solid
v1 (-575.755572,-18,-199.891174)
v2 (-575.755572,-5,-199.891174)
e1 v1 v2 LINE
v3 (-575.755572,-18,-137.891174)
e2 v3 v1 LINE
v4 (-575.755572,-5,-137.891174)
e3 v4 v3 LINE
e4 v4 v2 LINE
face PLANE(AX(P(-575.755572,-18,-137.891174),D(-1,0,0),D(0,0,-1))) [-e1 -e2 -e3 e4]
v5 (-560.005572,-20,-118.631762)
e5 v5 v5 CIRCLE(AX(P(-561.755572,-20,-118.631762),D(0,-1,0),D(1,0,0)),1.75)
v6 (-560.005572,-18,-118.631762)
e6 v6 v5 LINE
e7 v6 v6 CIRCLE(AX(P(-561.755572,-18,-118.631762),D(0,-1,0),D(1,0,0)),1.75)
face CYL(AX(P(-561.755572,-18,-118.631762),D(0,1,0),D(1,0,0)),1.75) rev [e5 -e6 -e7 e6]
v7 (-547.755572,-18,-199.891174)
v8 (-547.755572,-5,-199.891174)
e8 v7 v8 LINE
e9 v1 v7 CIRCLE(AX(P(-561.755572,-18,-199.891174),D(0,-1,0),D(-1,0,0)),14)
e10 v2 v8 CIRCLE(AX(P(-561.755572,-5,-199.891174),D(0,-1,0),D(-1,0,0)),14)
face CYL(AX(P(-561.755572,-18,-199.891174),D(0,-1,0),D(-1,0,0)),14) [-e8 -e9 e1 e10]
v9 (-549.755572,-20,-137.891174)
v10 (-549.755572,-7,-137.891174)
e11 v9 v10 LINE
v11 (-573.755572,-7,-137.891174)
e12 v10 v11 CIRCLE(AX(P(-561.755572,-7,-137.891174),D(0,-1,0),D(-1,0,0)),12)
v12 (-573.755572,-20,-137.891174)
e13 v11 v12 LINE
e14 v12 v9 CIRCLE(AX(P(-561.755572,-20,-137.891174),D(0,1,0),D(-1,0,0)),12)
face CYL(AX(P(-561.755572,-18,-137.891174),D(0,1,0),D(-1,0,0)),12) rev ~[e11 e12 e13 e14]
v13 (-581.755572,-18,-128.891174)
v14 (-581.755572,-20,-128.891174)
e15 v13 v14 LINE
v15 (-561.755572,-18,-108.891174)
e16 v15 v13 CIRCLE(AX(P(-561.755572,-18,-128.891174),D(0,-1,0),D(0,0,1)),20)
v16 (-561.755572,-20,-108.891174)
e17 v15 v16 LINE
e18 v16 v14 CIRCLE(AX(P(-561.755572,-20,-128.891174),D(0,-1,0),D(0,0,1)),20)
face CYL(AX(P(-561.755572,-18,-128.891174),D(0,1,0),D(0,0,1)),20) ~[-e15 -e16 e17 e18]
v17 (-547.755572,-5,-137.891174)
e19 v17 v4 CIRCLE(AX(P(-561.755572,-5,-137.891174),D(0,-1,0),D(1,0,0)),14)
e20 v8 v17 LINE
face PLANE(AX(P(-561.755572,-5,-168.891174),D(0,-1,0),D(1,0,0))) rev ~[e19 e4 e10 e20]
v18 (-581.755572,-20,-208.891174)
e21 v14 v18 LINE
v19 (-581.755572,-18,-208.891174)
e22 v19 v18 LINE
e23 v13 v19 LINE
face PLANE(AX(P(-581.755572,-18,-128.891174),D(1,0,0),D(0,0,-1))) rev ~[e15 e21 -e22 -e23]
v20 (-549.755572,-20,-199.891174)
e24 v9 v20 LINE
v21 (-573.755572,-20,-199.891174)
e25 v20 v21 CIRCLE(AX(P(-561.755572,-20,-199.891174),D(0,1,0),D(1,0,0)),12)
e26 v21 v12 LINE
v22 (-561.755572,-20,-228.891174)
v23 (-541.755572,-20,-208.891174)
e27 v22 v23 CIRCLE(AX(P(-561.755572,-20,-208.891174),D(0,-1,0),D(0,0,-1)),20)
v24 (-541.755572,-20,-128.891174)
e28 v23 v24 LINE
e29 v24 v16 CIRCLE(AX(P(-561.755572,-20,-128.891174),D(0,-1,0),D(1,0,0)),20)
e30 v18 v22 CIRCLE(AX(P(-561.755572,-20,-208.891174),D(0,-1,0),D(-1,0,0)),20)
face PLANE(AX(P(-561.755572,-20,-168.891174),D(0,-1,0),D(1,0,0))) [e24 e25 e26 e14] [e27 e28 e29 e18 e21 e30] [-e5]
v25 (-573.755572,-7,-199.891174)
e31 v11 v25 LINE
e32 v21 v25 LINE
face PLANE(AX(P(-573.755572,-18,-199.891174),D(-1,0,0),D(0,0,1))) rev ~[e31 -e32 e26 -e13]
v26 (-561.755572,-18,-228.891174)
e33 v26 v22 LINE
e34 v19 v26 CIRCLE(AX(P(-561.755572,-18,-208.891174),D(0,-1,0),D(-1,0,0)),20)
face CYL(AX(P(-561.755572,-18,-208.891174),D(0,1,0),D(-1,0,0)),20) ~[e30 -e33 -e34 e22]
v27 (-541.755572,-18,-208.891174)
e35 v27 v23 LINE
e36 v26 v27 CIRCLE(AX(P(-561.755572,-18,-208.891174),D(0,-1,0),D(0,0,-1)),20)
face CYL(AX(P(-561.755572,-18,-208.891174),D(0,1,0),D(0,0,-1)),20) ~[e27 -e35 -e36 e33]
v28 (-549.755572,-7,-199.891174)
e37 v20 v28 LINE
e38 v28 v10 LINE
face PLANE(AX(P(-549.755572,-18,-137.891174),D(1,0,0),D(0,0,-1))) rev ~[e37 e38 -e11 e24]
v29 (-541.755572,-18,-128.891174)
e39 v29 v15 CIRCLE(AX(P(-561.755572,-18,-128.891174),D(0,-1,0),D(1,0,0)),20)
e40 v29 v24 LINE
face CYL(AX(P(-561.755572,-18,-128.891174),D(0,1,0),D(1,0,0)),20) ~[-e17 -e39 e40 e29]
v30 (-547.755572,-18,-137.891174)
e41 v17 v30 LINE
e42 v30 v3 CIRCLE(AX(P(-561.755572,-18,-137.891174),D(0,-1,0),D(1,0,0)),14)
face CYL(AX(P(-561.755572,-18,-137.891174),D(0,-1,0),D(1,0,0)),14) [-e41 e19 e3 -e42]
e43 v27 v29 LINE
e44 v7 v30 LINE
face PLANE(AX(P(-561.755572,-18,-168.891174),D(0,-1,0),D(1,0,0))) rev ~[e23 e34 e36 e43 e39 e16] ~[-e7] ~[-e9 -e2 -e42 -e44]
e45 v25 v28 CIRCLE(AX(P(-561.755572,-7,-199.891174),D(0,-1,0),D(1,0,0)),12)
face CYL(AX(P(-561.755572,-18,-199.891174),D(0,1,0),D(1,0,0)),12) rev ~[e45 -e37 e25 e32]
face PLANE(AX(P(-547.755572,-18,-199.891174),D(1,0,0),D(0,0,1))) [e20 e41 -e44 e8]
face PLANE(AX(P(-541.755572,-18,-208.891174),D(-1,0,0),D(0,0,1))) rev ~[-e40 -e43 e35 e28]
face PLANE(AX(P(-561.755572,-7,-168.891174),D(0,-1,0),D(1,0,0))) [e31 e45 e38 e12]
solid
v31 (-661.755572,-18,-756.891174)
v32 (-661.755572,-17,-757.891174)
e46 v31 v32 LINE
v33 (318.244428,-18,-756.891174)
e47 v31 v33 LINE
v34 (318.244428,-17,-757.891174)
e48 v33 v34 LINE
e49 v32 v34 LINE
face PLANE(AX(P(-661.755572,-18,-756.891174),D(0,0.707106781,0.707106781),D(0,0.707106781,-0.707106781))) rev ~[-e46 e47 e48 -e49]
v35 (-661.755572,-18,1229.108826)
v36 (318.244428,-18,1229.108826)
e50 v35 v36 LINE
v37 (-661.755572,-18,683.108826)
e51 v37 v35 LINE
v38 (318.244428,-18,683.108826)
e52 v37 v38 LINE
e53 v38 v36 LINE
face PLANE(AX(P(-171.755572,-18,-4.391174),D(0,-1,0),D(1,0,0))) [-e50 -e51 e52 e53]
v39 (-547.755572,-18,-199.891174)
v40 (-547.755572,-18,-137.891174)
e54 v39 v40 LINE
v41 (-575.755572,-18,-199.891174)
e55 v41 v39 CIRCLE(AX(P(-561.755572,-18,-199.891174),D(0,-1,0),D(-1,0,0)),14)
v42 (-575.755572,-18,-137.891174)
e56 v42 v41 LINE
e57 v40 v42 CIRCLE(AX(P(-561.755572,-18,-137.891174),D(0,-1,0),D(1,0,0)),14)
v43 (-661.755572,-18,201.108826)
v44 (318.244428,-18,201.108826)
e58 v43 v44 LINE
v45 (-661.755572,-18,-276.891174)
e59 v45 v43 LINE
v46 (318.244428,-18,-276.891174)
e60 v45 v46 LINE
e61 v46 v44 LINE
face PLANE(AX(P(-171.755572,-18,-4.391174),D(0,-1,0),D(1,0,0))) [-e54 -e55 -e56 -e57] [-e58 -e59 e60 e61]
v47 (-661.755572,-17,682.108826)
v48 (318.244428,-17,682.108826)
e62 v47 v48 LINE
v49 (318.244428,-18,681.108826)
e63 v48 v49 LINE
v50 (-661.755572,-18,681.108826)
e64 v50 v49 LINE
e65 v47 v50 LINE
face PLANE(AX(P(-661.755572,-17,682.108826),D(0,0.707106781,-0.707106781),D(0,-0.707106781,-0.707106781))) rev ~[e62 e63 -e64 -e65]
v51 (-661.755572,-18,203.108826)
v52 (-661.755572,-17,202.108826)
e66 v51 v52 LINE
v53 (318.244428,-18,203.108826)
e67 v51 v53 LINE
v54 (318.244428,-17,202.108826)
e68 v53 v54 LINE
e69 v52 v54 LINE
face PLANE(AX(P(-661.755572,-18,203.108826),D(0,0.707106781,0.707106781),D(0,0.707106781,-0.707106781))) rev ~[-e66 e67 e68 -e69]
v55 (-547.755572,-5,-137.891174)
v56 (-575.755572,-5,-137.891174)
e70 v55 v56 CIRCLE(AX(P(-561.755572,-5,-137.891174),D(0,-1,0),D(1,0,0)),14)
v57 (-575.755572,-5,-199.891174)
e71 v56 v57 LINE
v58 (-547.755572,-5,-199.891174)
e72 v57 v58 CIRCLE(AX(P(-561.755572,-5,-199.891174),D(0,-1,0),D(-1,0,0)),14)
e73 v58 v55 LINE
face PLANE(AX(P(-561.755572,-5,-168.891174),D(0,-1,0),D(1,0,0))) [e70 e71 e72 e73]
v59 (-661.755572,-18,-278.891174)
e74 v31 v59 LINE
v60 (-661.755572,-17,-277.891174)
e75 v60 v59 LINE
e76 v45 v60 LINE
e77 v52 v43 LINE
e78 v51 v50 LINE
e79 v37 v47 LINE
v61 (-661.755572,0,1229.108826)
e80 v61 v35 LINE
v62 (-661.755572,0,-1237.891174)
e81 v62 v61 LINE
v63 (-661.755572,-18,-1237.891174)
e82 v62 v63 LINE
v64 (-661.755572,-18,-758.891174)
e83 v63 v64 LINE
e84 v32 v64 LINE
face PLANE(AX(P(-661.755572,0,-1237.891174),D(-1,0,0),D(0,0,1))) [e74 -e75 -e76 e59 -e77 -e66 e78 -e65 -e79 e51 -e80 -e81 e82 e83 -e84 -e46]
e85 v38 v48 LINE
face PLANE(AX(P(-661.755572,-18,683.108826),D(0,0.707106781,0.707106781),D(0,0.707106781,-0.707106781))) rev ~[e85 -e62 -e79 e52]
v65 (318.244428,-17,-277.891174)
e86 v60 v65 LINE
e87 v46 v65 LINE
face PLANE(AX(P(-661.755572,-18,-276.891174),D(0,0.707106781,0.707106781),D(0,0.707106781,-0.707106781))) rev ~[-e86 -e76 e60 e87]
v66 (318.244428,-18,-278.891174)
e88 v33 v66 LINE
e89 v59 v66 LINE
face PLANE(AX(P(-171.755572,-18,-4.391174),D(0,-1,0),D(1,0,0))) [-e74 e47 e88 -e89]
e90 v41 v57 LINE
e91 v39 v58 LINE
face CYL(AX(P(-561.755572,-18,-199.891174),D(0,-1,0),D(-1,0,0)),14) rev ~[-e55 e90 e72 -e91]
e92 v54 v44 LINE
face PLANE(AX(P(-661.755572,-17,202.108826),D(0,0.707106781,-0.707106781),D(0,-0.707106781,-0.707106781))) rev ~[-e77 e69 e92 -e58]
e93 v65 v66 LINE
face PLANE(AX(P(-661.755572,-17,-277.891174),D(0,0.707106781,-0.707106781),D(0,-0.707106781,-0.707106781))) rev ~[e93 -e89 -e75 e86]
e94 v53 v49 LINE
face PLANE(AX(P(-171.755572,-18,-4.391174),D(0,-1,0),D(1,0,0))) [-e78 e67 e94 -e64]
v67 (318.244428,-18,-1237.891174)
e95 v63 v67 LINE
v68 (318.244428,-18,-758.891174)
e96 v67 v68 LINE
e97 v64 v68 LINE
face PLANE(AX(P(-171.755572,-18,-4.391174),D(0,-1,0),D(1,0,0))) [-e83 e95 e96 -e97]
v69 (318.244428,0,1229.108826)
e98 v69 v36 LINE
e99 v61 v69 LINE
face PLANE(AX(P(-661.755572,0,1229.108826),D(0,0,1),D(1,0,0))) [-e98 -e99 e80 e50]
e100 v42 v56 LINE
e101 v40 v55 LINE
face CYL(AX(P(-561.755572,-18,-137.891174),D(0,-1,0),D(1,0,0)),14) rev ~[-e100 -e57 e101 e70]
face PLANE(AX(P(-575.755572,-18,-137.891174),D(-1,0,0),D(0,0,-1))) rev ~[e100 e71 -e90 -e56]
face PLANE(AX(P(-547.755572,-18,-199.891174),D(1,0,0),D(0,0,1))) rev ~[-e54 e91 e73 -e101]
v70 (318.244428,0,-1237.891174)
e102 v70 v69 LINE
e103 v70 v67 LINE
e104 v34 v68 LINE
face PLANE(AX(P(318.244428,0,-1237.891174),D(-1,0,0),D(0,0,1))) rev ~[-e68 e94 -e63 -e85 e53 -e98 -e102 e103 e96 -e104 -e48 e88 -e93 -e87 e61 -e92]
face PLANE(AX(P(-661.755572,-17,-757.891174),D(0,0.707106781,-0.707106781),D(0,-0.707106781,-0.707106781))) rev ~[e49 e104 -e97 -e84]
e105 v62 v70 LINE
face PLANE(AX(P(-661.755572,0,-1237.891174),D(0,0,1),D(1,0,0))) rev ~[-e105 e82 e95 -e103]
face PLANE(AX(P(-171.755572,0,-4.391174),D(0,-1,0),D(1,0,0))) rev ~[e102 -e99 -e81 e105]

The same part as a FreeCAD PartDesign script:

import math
import FreeCAD as App
import Part
import Sketcher
Q = App.Units.Quantity


def add_polygon(sketch, points):
    """Adds a closed chain of lines whose ends are joined by coincident constraints."""
    first, n = sketch.GeometryCount, len(points)
    for a, b in zip(points, points[1:] + points[:1]):
        sketch.addGeometry(Part.LineSegment(App.Vector(*a, 0), App.Vector(*b, 0)), False)
    for i in range(n):
        sketch.addConstraint(Sketcher.Constraint("Coincident", first + i, 2, first + (i + 1) % n, 1))

doc = App.newDocument("Part")
body = doc.addObject("PartDesign::Body", "Body")

sketch1 = body.newObject("Sketcher::SketchObject", "Sketch")
sketch1.AttachmentSupport = (doc.getObject("XZ_Plane"), [""])
sketch1.MapMode = "FlatFace"
add_polygon(sketch1, [(-662, 1229), (-662, -1238), (318, -1238), (318, 1229)])
sketch1.addConstraint([
    Sketcher.Constraint("Vertical", 0),
    Sketcher.Constraint("Horizontal", 1),
    Sketcher.Constraint("Vertical", 2),
    Sketcher.Constraint("Horizontal", 3),
    Sketcher.Constraint("DistanceX", 1, 1, 1, 2, Q("980 mm")),
    Sketcher.Constraint("DistanceY", 0, 2, 0, 1, Q("2467 mm")),
    Sketcher.Constraint("DistanceX", 0, 2, -1, 1, Q("661.755572 mm")),
    Sketcher.Constraint("DistanceY", 0, 2, -1, 1, Q("1237.891174 mm")),
])
pad1 = body.newObject("PartDesign::Pad", "Pad")
pad1.Profile = sketch1
pad1.Length = 18

sketch2 = body.newObject("Sketcher::SketchObject", "Sketch001")
sketch2.AttachmentSupport = (doc.getObject("YZ_Plane"), [""])
sketch2.MapMode = "FlatFace"
sketch2.AttachmentOffset = App.Placement(App.Vector(0, 0, -661.755572), App.Rotation())
add_polygon(sketch2, [(-18, -756.9), (-17, -757.9), (-18, -758.9)])
add_polygon(sketch2, [(-18, 683.1), (-17, 682.1), (-18, 681.1)])
add_polygon(sketch2, [(-17, 202.1), (-18, 201.1), (-18, 203.1)])
add_polygon(sketch2, [(-17, -277.9), (-18, -278.9), (-18, -276.9)])
sketch2.addConstraint([
    Sketcher.Constraint("Vertical", 2),
    Sketcher.Constraint("Vertical", 5),
    Sketcher.Constraint("Vertical", 7),
    Sketcher.Constraint("Vertical", 10),
    Sketcher.Constraint("Perpendicular", 0, 1),
    Sketcher.Constraint("Perpendicular", 1, 3),
    Sketcher.Constraint("Perpendicular", 3, 4),
    Sketcher.Constraint("Parallel", 4, 6),
    Sketcher.Constraint("Perpendicular", 6, 8),
    Sketcher.Constraint("Perpendicular", 8, 9),
    Sketcher.Constraint("Perpendicular", 9, 11),
    Sketcher.Constraint("Vertical", 0, 2, 3, 2),
    Sketcher.Constraint("Vertical", 2, 2, 4, 2),
    Sketcher.Constraint("Vertical", 5, 2, 6, 2),
    Sketcher.Constraint("Vertical", 3, 2, 8, 2),
    Sketcher.Constraint("Vertical", 7, 2, 9, 2),
    Sketcher.Constraint("Vertical", 8, 2, 11, 2),
    Sketcher.Constraint("Equal", 0, 1),
    Sketcher.Constraint("DistanceY", 2, 1, 2, 2, Q("2 mm")),
    Sketcher.Constraint("DistanceX", 0, 2, -1, 1, Q("17 mm")),
    Sketcher.Constraint("DistanceY", 2, 2, 3, 2, Q("1439 mm")),
    Sketcher.Constraint("DistanceY", 6, 2, 4, 2, Q("480 mm")),
    Sketcher.Constraint("DistanceY", 2, 2, 9, 2, Q("478 mm")),
    Sketcher.Constraint("DistanceY", 0, 2, -1, 1, Q("757.891174 mm")),
])
pocket1 = body.newObject("PartDesign::Pocket", "Pocket")
pocket1.Profile = sketch2
pocket1.Type = "ThroughAll"
pocket1.Reversed = True

sketch3 = body.newObject("Sketcher::SketchObject", "Sketch002")
sketch3.AttachmentSupport = (doc.getObject("XZ_Plane"), [""])
sketch3.MapMode = "FlatFace"
sketch3.AttachmentOffset = App.Placement(App.Vector(0, 0, 18), App.Rotation())
sketch3.addGeometry([
    Part.LineSegment(App.Vector(-548, -200, 0), App.Vector(-548, -138, 0)),
    Part.ArcOfCircle(Part.Circle(App.Vector(-562, -138, 0), App.Vector(0, 0, 1), 14), math.radians(0), math.radians(180)),
    Part.LineSegment(App.Vector(-576, -138, 0), App.Vector(-576, -200, 0)),
    Part.ArcOfCircle(Part.Circle(App.Vector(-562, -200, 0), App.Vector(0, 0, 1), 14), math.radians(180), math.radians(360)),
], False)
sketch3.addConstraint([
    Sketcher.Constraint("Tangent", 0, 2, 1, 1),
    Sketcher.Constraint("Tangent", 1, 2, 2, 1),
    Sketcher.Constraint("Tangent", 2, 2, 3, 1),
    Sketcher.Constraint("Tangent", 3, 2, 0, 1),
    Sketcher.Constraint("Vertical", 0),
    Sketcher.Constraint("Vertical", 2),
    Sketcher.Constraint("Radius", 1, Q("14 mm")),
    Sketcher.Constraint("DistanceY", 0, 1, 0, 2, Q("62 mm")),
    Sketcher.Constraint("DistanceX", 1, 3, -1, 1, Q("561.755572 mm")),
    Sketcher.Constraint("DistanceY", 1, 3, -1, 1, Q("137.891174 mm")),
])
pocket2 = body.newObject("PartDesign::Pocket", "Pocket001")
pocket2.Profile = sketch3
pocket2.Length = 13
body2 = doc.addObject("PartDesign::Body", "Body001")

sketch4 = body2.newObject("Sketcher::SketchObject", "Sketch003")
sketch4.AttachmentSupport = (doc.getObject("XZ_Plane001"), [""])
sketch4.MapMode = "FlatFace"
sketch4.AttachmentOffset = App.Placement(App.Vector(0, 0, 18), App.Rotation())
sketch4.addGeometry([
    Part.LineSegment(App.Vector(-548, -200, 0), App.Vector(-548, -138, 0)),
    Part.ArcOfCircle(Part.Circle(App.Vector(-562, -138, 0), App.Vector(0, 0, 1), 14), math.radians(0), math.radians(180)),
    Part.LineSegment(App.Vector(-576, -138, 0), App.Vector(-576, -200, 0)),
    Part.ArcOfCircle(Part.Circle(App.Vector(-562, -200, 0), App.Vector(0, 0, 1), 14), math.radians(180), math.radians(360)),
    Part.LineSegment(App.Vector(-574, -200, 0), App.Vector(-574, -138, 0)),
    Part.ArcOfCircle(Part.Circle(App.Vector(-562, -138, 0), App.Vector(0, 0, 1), 12), math.radians(0), math.radians(180)),
    Part.LineSegment(App.Vector(-550, -138, 0), App.Vector(-550, -200, 0)),
    Part.ArcOfCircle(Part.Circle(App.Vector(-562, -200, 0), App.Vector(0, 0, 1), 12), math.radians(180), math.radians(360)),
], False)
sketch4.addConstraint([
    Sketcher.Constraint("Tangent", 0, 2, 1, 1),
    Sketcher.Constraint("Tangent", 1, 2, 2, 1),
    Sketcher.Constraint("Tangent", 2, 2, 3, 1),
    Sketcher.Constraint("Tangent", 3, 2, 0, 1),
    Sketcher.Constraint("Tangent", 4, 2, 5, 2),
    Sketcher.Constraint("Tangent", 5, 1, 6, 1),
    Sketcher.Constraint("Tangent", 6, 2, 7, 2),
    Sketcher.Constraint("Tangent", 7, 1, 4, 1),
    Sketcher.Constraint("Vertical", 0),
    Sketcher.Constraint("Vertical", 2),
    Sketcher.Constraint("Vertical", 4),
    Sketcher.Constraint("Vertical", 6),
    Sketcher.Constraint("Coincident", 5, 3, 1, 3),
    Sketcher.Constraint("Horizontal", 7, 3, 2, 2),
    Sketcher.Constraint("Radius", 1, Q("14 mm")),
    Sketcher.Constraint("Radius", 5, Q("12 mm")),
    Sketcher.Constraint("DistanceY", 0, 1, 0, 2, Q("62 mm")),
    Sketcher.Constraint("DistanceX", 1, 3, -1, 1, Q("561.755572 mm")),
    Sketcher.Constraint("DistanceY", 1, 3, -1, 1, Q("137.891174 mm")),
])
pad2 = body2.newObject("PartDesign::Pad", "Pad001")
pad2.Profile = sketch4
pad2.Length = 13
pad2.Reversed = True

sketch5 = body2.newObject("Sketcher::SketchObject", "Sketch004")
sketch5.AttachmentSupport = (doc.getObject("XZ_Plane001"), [""])
sketch5.MapMode = "FlatFace"
sketch5.AttachmentOffset = App.Placement(App.Vector(0, 0, 7), App.Rotation())
sketch5.addGeometry([
    Part.LineSegment(App.Vector(-548, -200, 0), App.Vector(-548, -138, 0)),
    Part.ArcOfCircle(Part.Circle(App.Vector(-562, -138, 0), App.Vector(0, 0, 1), 14), math.radians(0), math.radians(180)),
    Part.LineSegment(App.Vector(-576, -138, 0), App.Vector(-576, -200, 0)),
    Part.ArcOfCircle(Part.Circle(App.Vector(-562, -200, 0), App.Vector(0, 0, 1), 14), math.radians(180), math.radians(360)),
], False)
sketch5.addConstraint([
    Sketcher.Constraint("Tangent", 0, 2, 1, 1),
    Sketcher.Constraint("Tangent", 1, 2, 2, 1),
    Sketcher.Constraint("Tangent", 2, 2, 3, 1),
    Sketcher.Constraint("Tangent", 3, 2, 0, 1),
    Sketcher.Constraint("Vertical", 0),
    Sketcher.Constraint("Vertical", 2),
    Sketcher.Constraint("Radius", 1, Q("14 mm")),
    Sketcher.Constraint("DistanceY", 0, 1, 0, 2, Q("62 mm")),
    Sketcher.Constraint("DistanceX", 1, 3, -1, 1, Q("561.755572 mm")),
    Sketcher.Constraint("DistanceY", 1, 3, -1, 1, Q("137.891174 mm")),
])
pad3 = body2.newObject("PartDesign::Pad", "Pad002")
pad3.Profile = sketch5
pad3.Length = 2
pad3.Reversed = True

sketch6 = body2.newObject("Sketcher::SketchObject", "Sketch005")
sketch6.AttachmentSupport = (doc.getObject("XZ_Plane001"), [""])
sketch6.MapMode = "FlatFace"
sketch6.AttachmentOffset = App.Placement(App.Vector(0, 0, 18), App.Rotation())
sketch6.addGeometry([
    Part.LineSegment(App.Vector(-581.8, -128.9, 0), App.Vector(-581.8, -208.9, 0)),
    Part.ArcOfCircle(Part.Circle(App.Vector(-561.8, -208.9, 0), App.Vector(0, 0, 1), 20), math.radians(180), math.radians(270)),
    Part.ArcOfCircle(Part.Circle(App.Vector(-561.8, -208.9, 0), App.Vector(0, 0, 1), 20), math.radians(-90), math.radians(0)),
    Part.LineSegment(App.Vector(-541.8, -208.9, 0), App.Vector(-541.8, -128.9, 0)),
    Part.ArcOfCircle(Part.Circle(App.Vector(-561.8, -128.9, 0), App.Vector(0, 0, 1), 20), math.radians(0), math.radians(90)),
    Part.ArcOfCircle(Part.Circle(App.Vector(-561.8, -128.9, 0), App.Vector(0, 0, 1), 20), math.radians(90), math.radians(180)),
    Part.LineSegment(App.Vector(-573.8, -199.9, 0), App.Vector(-573.8, -137.9, 0)),
    Part.ArcOfCircle(Part.Circle(App.Vector(-561.8, -137.9, 0), App.Vector(0, 0, 1), 12), math.radians(0), math.radians(180)),
    Part.LineSegment(App.Vector(-549.8, -137.9, 0), App.Vector(-549.8, -199.9, 0)),
    Part.ArcOfCircle(Part.Circle(App.Vector(-561.8, -199.9, 0), App.Vector(0, 0, 1), 12), math.radians(180), math.radians(360)),
    Part.Circle(App.Vector(-561.8, -118.6, 0), App.Vector(0, 0, 1), 1.8),
], False)
sketch6.addConstraint([
    Sketcher.Constraint("Tangent", 0, 2, 1, 1),
    Sketcher.Constraint("Tangent", 1, 2, 2, 1),
    Sketcher.Constraint("Tangent", 2, 2, 3, 1),
    Sketcher.Constraint("Tangent", 3, 2, 4, 1),
    Sketcher.Constraint("Tangent", 4, 2, 5, 1),
    Sketcher.Constraint("Tangent", 5, 2, 0, 1),
    Sketcher.Constraint("Tangent", 6, 2, 7, 2),
    Sketcher.Constraint("Tangent", 7, 1, 8, 1),
    Sketcher.Constraint("Tangent", 8, 2, 9, 2),
    Sketcher.Constraint("Tangent", 9, 1, 6, 1),
    Sketcher.Constraint("Vertical", 0),
    Sketcher.Constraint("Vertical", 3),
    Sketcher.Constraint("Vertical", 6),
    Sketcher.Constraint("Vertical", 8),
    Sketcher.Constraint("Equal", 1, 2),
    Sketcher.Constraint("Equal", 2, 4),
    Sketcher.Constraint("Vertical", 5, 3, 7, 3),
    Sketcher.Constraint("Vertical", 9, 3, 10, 3),
    Sketcher.Constraint("Vertical", 10, 3, 1, 2),
    Sketcher.Constraint("Vertical", 1, 2, 4, 2),
    Sketcher.Constraint("Radius", 1, Q("20 mm")),
    Sketcher.Constraint("Radius", 7, Q("12 mm")),
    Sketcher.Constraint("Diameter", 10, Q("3.5 mm")),
    Sketcher.Constraint("DistanceY", 0, 2, 0, 1, Q("80 mm")),
    Sketcher.Constraint("DistanceY", 6, 1, 6, 2, Q("62 mm")),
    Sketcher.Constraint("DistanceY", 7, 3, 4, 3, Q("9 mm")),
    Sketcher.Constraint("DistanceX", 1, 3, -1, 1, Q("561.755572 mm")),
    Sketcher.Constraint("DistanceY", 4, 3, 10, 3, Q("10.259411 mm")),
    Sketcher.Constraint("DistanceY", 1, 3, -1, 1, Q("208.891174 mm")),
])
pad4 = body2.newObject("PartDesign::Pad", "Pad003")
pad4.Profile = sketch6
pad4.Length = 2

doc.recompute()
